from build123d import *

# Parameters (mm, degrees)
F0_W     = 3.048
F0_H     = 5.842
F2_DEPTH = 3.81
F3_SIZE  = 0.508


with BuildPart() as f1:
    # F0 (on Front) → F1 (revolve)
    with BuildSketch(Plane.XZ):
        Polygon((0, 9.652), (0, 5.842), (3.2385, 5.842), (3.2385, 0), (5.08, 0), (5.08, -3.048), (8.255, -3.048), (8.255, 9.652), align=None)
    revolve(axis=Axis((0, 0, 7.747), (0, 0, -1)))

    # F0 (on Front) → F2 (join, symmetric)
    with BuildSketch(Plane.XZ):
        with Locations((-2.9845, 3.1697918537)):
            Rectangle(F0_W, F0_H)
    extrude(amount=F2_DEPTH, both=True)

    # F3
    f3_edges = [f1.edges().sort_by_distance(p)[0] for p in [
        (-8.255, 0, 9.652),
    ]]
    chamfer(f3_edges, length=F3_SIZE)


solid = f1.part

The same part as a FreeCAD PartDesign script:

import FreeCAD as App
import Part
import Sketcher
Q = App.Units.Quantity


def edges_at(feature, points):
    """Names of the edges that pass closest to the given points."""
    edges = feature.Shape.Edges
    near = lambda p: min(range(len(edges)), key=lambda i: edges[i].distToShape(Part.Vertex(*p))[0])
    return sorted({f"Edge{near(p) + 1}" for p in points})


def add_polygon(sketch, points):
    """Adds a closed chain of lines whose ends are joined by coincident constraints."""
    first, n = sketch.GeometryCount, len(points)
    for a, b in zip(points, points[1:] + points[:1]):
        sketch.addGeometry(Part.LineSegment(App.Vector(*a, 0), App.Vector(*b, 0)), False)
    for i in range(n):
        sketch.addConstraint(Sketcher.Constraint("Coincident", first + i, 2, first + (i + 1) % n, 1))

doc = App.newDocument("Part")
body = doc.addObject("PartDesign::Body", "Body")

# Sketch on XZ plane
sketch1 = doc.addObject("Sketcher::SketchObject", "Sketch")
body.addObject(sketch1)
sketch1.AttachmentSupport = (doc.XZ_Plane, [""])
sketch1.MapMode = "FlatFace"
add_polygon(sketch1, [(0, 9.652), (0, 5.842), (3.2385, 5.842), (3.2385, 0), (5.08, 0), (5.08, -3.048), (8.255, -3.048), (8.255, 9.652)])  # lines 0-7
sketch1.addConstraint(Sketcher.Constraint("Vertical", 0))
sketch1.addConstraint(Sketcher.Constraint("Horizontal", 1))
sketch1.addConstraint(Sketcher.Constraint("Vertical", 2))
sketch1.addConstraint(Sketcher.Constraint("Horizontal", 3))
sketch1.addConstraint(Sketcher.Constraint("Vertical", 4))
sketch1.addConstraint(Sketcher.Constraint("Horizontal", 5))
sketch1.addConstraint(Sketcher.Constraint("Vertical", 6))
sketch1.addConstraint(Sketcher.Constraint("Horizontal", 7))
sketch1.addConstraint(Sketcher.Constraint("PointOnObject", 0, 2, -2))
sketch1.addConstraint(Sketcher.Constraint("PointOnObject", 2, 2, -1))
sketch1.addConstraint(Sketcher.Constraint("DistanceY", 6, 1, 6, 2, Q("0.5 in")))
sketch1.addConstraint(Sketcher.Constraint("DistanceY", 0, 2, 0, 1, Q("0.15 in")))
sketch1.addConstraint(Sketcher.Constraint("DistanceY", 2, 2, 2, 1, Q("0.23 in")))
sketch1.addConstraint(Sketcher.Constraint("DistanceX", -1, 1, 3, 2, Q("0.2 in")))
sketch1.addConstraint(Sketcher.Constraint("DistanceX", 5, 1, 5, 2, Q("0.125 in")))
sketch1.addConstraint(Sketcher.Constraint("DistanceX", 1, 1, 1, 2, Q("0.1275 in")))
revolution = doc.addObject("PartDesign::Revolution", "Revolution")
body.addObject(revolution)
revolution.Profile = sketch1
revolution.ReferenceAxis = (sketch1, ["V_Axis"])
revolution.Angle = 360

# Sketch on XZ plane
sketch2 = doc.addObject("Sketcher::SketchObject", "Sketch001")
body.addObject(sketch2)
sketch2.AttachmentSupport = (doc.XZ_Plane, [""])
sketch2.MapMode = "FlatFace"
add_polygon(sketch2, [(-4.5085, 6.090792), (-4.5085, 0.248792), (-1.4605, 0.248792), (-1.4605, 6.090792)])  # lines 0-3
sketch2.addConstraint(Sketcher.Constraint("Vertical", 0))
sketch2.addConstraint(Sketcher.Constraint("Horizontal", 1))
sketch2.addConstraint(Sketcher.Constraint("Vertical", 2))
sketch2.addConstraint(Sketcher.Constraint("Horizontal", 3))
sketch2.addConstraint(Sketcher.Constraint("DistanceX", 1, 1, 1, 2, Q("0.12 in")))
sketch2.addConstraint(Sketcher.Constraint("DistanceY", 0, 2, 0, 1, Q("0.23 in")))
sketch2.addConstraint(Sketcher.Constraint("DistanceX", 0, 2, -1, 1, Q("0.1775 in")))
sketch2.addConstraint(Sketcher.Constraint("DistanceY", -1, 1, 0, 2, 0.248792))
pad1 = doc.addObject("PartDesign::Pad", "Pad")
body.addObject(pad1)
pad1.Profile = sketch2
pad1.Length = Q("0.3 in")
pad1.Midplane = True
doc.recompute()

chamfer = doc.addObject("PartDesign::Chamfer", "Chamfer")
body.addObject(chamfer)
chamfer.Base = (pad1, edges_at(pad1, [(-8.255, 0, 9.652)]))
chamfer.Size = Q("0.02 in")

doc.recompute()
